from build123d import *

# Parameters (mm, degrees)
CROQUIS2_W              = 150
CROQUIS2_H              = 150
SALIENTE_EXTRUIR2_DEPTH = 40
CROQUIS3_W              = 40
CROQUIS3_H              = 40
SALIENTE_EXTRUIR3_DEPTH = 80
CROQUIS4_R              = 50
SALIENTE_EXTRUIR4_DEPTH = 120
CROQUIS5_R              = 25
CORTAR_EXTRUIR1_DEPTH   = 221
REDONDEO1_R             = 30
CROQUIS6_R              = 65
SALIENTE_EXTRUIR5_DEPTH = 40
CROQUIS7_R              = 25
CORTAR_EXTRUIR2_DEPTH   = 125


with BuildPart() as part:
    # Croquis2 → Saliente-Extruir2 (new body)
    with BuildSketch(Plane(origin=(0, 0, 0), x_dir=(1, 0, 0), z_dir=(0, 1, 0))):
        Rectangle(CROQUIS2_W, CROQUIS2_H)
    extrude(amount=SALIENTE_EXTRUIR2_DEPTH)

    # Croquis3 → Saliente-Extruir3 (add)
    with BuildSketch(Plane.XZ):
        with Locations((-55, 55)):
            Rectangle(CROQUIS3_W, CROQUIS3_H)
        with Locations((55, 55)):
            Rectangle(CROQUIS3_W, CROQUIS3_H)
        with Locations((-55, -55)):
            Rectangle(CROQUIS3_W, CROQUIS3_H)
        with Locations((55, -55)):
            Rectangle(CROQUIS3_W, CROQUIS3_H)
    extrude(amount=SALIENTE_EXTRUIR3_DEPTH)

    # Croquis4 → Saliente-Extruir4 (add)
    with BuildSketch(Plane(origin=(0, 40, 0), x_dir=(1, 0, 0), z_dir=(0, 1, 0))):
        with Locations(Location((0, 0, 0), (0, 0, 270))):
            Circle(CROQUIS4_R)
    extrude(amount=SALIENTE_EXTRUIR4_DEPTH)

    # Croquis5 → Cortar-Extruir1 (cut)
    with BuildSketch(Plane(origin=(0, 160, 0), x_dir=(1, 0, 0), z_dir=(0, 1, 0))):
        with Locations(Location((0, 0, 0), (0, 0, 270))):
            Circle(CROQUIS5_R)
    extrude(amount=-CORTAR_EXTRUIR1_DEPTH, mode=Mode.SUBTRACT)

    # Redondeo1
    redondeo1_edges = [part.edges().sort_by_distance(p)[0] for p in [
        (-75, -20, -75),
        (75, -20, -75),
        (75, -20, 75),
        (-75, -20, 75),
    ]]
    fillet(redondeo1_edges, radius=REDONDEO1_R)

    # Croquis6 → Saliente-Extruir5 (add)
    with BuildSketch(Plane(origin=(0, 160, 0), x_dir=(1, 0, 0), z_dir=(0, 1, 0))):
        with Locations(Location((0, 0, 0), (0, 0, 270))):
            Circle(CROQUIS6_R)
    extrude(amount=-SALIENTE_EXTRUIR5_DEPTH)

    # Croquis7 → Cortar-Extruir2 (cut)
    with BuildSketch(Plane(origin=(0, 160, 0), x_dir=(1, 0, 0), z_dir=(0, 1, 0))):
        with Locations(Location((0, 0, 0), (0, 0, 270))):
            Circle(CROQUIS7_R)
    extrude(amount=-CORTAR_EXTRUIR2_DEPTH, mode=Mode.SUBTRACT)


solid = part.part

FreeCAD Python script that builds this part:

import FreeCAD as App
import Part
import Sketcher

V = App.Vector
Q = App.Units.Quantity


def edges_at(feature, points):
    """Names of the edges that pass closest to the given points."""
    edges = feature.Shape.Edges
    near = lambda p: min(range(len(edges)), key=lambda i: edges[i].distToShape(Part.Vertex(*p))[0])
    return sorted({f"Edge{near(p) + 1}" for p in points})

doc = App.newDocument("Part")
params = doc.addObject("Spreadsheet::Sheet", "Params")
for row, (alias, value) in enumerate([
    ("sketch1_width", "150 mm"),
    ("pad1_length", "40 mm"),
    ("sketch2_width", "40 mm"),
    ("pad2_length", "80 mm"),
    ("sketch3_diameter", "100 mm"),
    ("pad3_length", "120 mm"),
    ("sketch4_diameter", "50 mm"),
    ("pocket1_length", "221 mm"),
    ("fillet_radius", "30 mm"),
    ("sketch5_diameter", "130 mm"),
    ("pad4_length", "40 mm"),
    ("sketch6_diameter", "50 mm"),
    ("pocket2_length", "125 mm"),
], start=1):
    params.set(f"A{row}", alias)
    params.set(f"B{row}", "=" + value)
    params.setAlias(f"B{row}", alias)

body = doc.addObject("PartDesign::Body", "Body")

# Sketch on XZ plane
sketch1 = doc.addObject("Sketcher::SketchObject", "Sketch")
body.addObject(sketch1)
sketch1.AttachmentSupport = (doc.XZ_Plane, [""])
sketch1.MapMode = "FlatFace"
sketch1.addGeometry([
    Part.LineSegment(V(-75, -75, 0), V(-75, 75, 0)),
    Part.LineSegment(V(-75, 75, 0), V(75, 75, 0)),
    Part.LineSegment(V(75, 75, 0), V(75, -75, 0)),
    Part.LineSegment(V(75, -75, 0), V(-75, -75, 0)),
], False)
sketch1.addConstraint([
    Sketcher.Constraint("Coincident", 0, 2, 1, 1),
    Sketcher.Constraint("Coincident", 1, 2, 2, 1),
    Sketcher.Constraint("Coincident", 2, 2, 3, 1),
    Sketcher.Constraint("Coincident", 3, 2, 0, 1),
    Sketcher.Constraint("Vertical", 0),
    Sketcher.Constraint("Horizontal", 1),
    Sketcher.Constraint("Vertical", 2),
    Sketcher.Constraint("Horizontal", 3),
    Sketcher.Constraint("Symmetric", 0, 2, 2, 2, -1, 1),
    Sketcher.Constraint("Equal", 3, 0),
    Sketcher.Constraint("DistanceX", 1, 1, 1, 2, Q("150 mm")),
])
sketch1.setExpression("Constraints[10]", "Params.sketch1_width")
pad1 = doc.addObject("PartDesign::Pad", "Pad")
body.addObject(pad1)
pad1.Profile = sketch1
pad1.setExpression("Length", "Params.pad1_length")
pad1.Reversed = True

# Sketch on XZ plane
sketch2 = doc.addObject("Sketcher::SketchObject", "Sketch001")
body.addObject(sketch2)
sketch2.AttachmentSupport = (doc.XZ_Plane, [""])
sketch2.MapMode = "FlatFace"
sketch2.addGeometry([
    Part.LineSegment(V(-75, 75, 0), V(-75, 35, 0)),  # 0
    Part.LineSegment(V(-75, 35, 0), V(-35, 35, 0)),  # 1
    Part.LineSegment(V(-35, 35, 0), V(-35, 75, 0)),  # 2
    Part.LineSegment(V(-35, 75, 0), V(-75, 75, 0)),  # 3
    Part.LineSegment(V(35, 75, 0), V(35, 35, 0)),  # 4
    Part.LineSegment(V(35, 35, 0), V(75, 35, 0)),  # 5
    Part.LineSegment(V(75, 35, 0), V(75, 75, 0)),  # 6
    Part.LineSegment(V(75, 75, 0), V(35, 75, 0)),  # 7
    Part.LineSegment(V(-75, -35, 0), V(-75, -75, 0)),  # 8
    Part.LineSegment(V(-75, -75, 0), V(-35, -75, 0)),  # 9
    Part.LineSegment(V(-35, -75, 0), V(-35, -35, 0)),  # 10
    Part.LineSegment(V(-35, -35, 0), V(-75, -35, 0)),  # 11
    Part.LineSegment(V(35, -35, 0), V(35, -75, 0)),  # 12
    Part.LineSegment(V(35, -75, 0), V(75, -75, 0)),  # 13
    Part.LineSegment(V(75, -75, 0), V(75, -35, 0)),  # 14
    Part.LineSegment(V(75, -35, 0), V(35, -35, 0)),  # 15
], False)
sketch2.addConstraint([
    Sketcher.Constraint("Coincident", 0, 2, 1, 1),
    Sketcher.Constraint("Coincident", 1, 2, 2, 1),
    Sketcher.Constraint("Coincident", 2, 2, 3, 1),
    Sketcher.Constraint("Coincident", 3, 2, 0, 1),
    Sketcher.Constraint("Coincident", 4, 2, 5, 1),
    Sketcher.Constraint("Coincident", 5, 2, 6, 1),
    Sketcher.Constraint("Coincident", 6, 2, 7, 1),
    Sketcher.Constraint("Coincident", 7, 2, 4, 1),
    Sketcher.Constraint("Coincident", 8, 2, 9, 1),
    Sketcher.Constraint("Coincident", 9, 2, 10, 1),
    Sketcher.Constraint("Coincident", 10, 2, 11, 1),
    Sketcher.Constraint("Coincident", 11, 2, 8, 1),
    Sketcher.Constraint("Coincident", 12, 2, 13, 1),
    Sketcher.Constraint("Coincident", 13, 2, 14, 1),
    Sketcher.Constraint("Coincident", 14, 2, 15, 1),
    Sketcher.Constraint("Coincident", 15, 2, 12, 1),
    Sketcher.Constraint("Vertical", 0),
    Sketcher.Constraint("Horizontal", 1),
    Sketcher.Constraint("Vertical", 2),
    Sketcher.Constraint("Horizontal", 3),
    Sketcher.Constraint("Vertical", 4),
    Sketcher.Constraint("Horizontal", 5),
    Sketcher.Constraint("Vertical", 6),
    Sketcher.Constraint("Horizontal", 7),
    Sketcher.Constraint("Vertical", 8),
    Sketcher.Constraint("Horizontal", 9),
    Sketcher.Constraint("Vertical", 10),
    Sketcher.Constraint("Horizontal", 11),
    Sketcher.Constraint("Vertical", 12),
    Sketcher.Constraint("Horizontal", 13),
    Sketcher.Constraint("Vertical", 14),
    Sketcher.Constraint("Horizontal", 15),
    Sketcher.Constraint("Symmetric", 6, 2, 8, 2, -1, 1),
    Sketcher.Constraint("Symmetric", 4, 2, 10, 2, -1, 1),
    Sketcher.Constraint("Symmetric", 2, 2, 12, 2, -1, 1),
    Sketcher.Constraint("Symmetric", 0, 2, 14, 2, -1, 1),
    Sketcher.Constraint("Symmetric", 1, 2, 4, 2, -2),
    Sketcher.Constraint("Symmetric", 3, 2, 6, 2, -2),
    Sketcher.Constraint("Equal", 15, 0),
    Sketcher.Constraint("DistanceX", 1, 1, 1, 2, Q("40 mm")),
    Sketcher.Constraint("DistanceX", 0, 2, -1, 1, Q("75 mm")),
    Sketcher.Constraint("DistanceY", -1, 1, 0, 2, Q("35 mm")),
])
sketch2.setExpression("Constraints[39]", "Params.sketch2_width")
pad2 = doc.addObject("PartDesign::Pad", "Pad001")
body.addObject(pad2)
pad2.Profile = sketch2
pad2.setExpression("Length", "Params.pad2_length")

# Sketch on XZ plane
sketch3 = doc.addObject("Sketcher::SketchObject", "Sketch002")
body.addObject(sketch3)
sketch3.AttachmentSupport = (doc.XZ_Plane, [""])
sketch3.MapMode = "FlatFace"
sketch3.AttachmentOffset = App.Placement(V(0, 0, -40), App.Rotation())
sketch3.addGeometry(Part.Circle(V(0, 0, 0), V(0, 0, 1), 50), False)
sketch3.addConstraint([
    Sketcher.Constraint("Coincident", 0, 3, -1, 1),
    Sketcher.Constraint("Diameter", 0, Q("100 mm")),
])
sketch3.setExpression("Constraints[1]", "Params.sketch3_diameter")
pad3 = doc.addObject("PartDesign::Pad", "Pad002")
body.addObject(pad3)
pad3.Profile = sketch3
pad3.setExpression("Length", "Params.pad3_length")
pad3.Reversed = True

# Sketch on XZ plane
sketch4 = doc.addObject("Sketcher::SketchObject", "Sketch003")
body.addObject(sketch4)
sketch4.AttachmentSupport = (doc.XZ_Plane, [""])
sketch4.MapMode = "FlatFace"
sketch4.AttachmentOffset = App.Placement(V(0, 0, -160), App.Rotation())
sketch4.addGeometry(Part.Circle(V(0, 0, 0), V(0, 0, 1), 25), False)
sketch4.addConstraint([
    Sketcher.Constraint("Coincident", 0, 3, -1, 1),
    Sketcher.Constraint("Diameter", 0, Q("50 mm")),
])
sketch4.setExpression("Constraints[1]", "Params.sketch4_diameter")
pocket1 = doc.addObject("PartDesign::Pocket", "Pocket")
body.addObject(pocket1)
pocket1.Profile = sketch4
pocket1.setExpression("Length", "Params.pocket1_length")
pocket1.Reversed = True
doc.recompute()

fillet = doc.addObject("PartDesign::Fillet", "Fillet")
body.addObject(fillet)
fillet.Base = (pocket1, edges_at(pocket1, [
    (-75, -20, -75),
    (75, -20, -75),
    (75, -20, 75),
    (-75, -20, 75),
]))
fillet.setExpression("Radius", "Params.fillet_radius")

# Sketch on XZ plane
sketch5 = doc.addObject("Sketcher::SketchObject", "Sketch004")
body.addObject(sketch5)
sketch5.AttachmentSupport = (doc.XZ_Plane, [""])
sketch5.MapMode = "FlatFace"
sketch5.AttachmentOffset = App.Placement(V(0, 0, -160), App.Rotation())
sketch5.addGeometry(Part.Circle(V(0, 0, 0), V(0, 0, 1), 65), False)
sketch5.addConstraint([
    Sketcher.Constraint("Coincident", 0, 3, -1, 1),
    Sketcher.Constraint("Diameter", 0, Q("130 mm")),
])
sketch5.setExpression("Constraints[1]", "Params.sketch5_diameter")
pad4 = doc.addObject("PartDesign::Pad", "Pad003")
body.addObject(pad4)
pad4.Profile = sketch5
pad4.setExpression("Length", "Params.pad4_length")

# Sketch on XZ plane
sketch6 = doc.addObject("Sketcher::SketchObject", "Sketch005")
body.addObject(sketch6)
sketch6.AttachmentSupport = (doc.XZ_Plane, [""])
sketch6.MapMode = "FlatFace"
sketch6.AttachmentOffset = App.Placement(V(0, 0, -160), App.Rotation())
sketch6.addGeometry(Part.Circle(V(0, 0, 0), V(0, 0, 1), 25), False)
sketch6.addConstraint([
    Sketcher.Constraint("Coincident", 0, 3, -1, 1),
    Sketcher.Constraint("Diameter", 0, Q("50 mm")),
])
sketch6.setExpression("Constraints[1]", "Params.sketch6_diameter")
pocket2 = doc.addObject("PartDesign::Pocket", "Pocket001")
body.addObject(pocket2)
pocket2.Profile = sketch6
pocket2.setExpression("Length", "Params.pocket2_length")
pocket2.Reversed = True

doc.recompute()
